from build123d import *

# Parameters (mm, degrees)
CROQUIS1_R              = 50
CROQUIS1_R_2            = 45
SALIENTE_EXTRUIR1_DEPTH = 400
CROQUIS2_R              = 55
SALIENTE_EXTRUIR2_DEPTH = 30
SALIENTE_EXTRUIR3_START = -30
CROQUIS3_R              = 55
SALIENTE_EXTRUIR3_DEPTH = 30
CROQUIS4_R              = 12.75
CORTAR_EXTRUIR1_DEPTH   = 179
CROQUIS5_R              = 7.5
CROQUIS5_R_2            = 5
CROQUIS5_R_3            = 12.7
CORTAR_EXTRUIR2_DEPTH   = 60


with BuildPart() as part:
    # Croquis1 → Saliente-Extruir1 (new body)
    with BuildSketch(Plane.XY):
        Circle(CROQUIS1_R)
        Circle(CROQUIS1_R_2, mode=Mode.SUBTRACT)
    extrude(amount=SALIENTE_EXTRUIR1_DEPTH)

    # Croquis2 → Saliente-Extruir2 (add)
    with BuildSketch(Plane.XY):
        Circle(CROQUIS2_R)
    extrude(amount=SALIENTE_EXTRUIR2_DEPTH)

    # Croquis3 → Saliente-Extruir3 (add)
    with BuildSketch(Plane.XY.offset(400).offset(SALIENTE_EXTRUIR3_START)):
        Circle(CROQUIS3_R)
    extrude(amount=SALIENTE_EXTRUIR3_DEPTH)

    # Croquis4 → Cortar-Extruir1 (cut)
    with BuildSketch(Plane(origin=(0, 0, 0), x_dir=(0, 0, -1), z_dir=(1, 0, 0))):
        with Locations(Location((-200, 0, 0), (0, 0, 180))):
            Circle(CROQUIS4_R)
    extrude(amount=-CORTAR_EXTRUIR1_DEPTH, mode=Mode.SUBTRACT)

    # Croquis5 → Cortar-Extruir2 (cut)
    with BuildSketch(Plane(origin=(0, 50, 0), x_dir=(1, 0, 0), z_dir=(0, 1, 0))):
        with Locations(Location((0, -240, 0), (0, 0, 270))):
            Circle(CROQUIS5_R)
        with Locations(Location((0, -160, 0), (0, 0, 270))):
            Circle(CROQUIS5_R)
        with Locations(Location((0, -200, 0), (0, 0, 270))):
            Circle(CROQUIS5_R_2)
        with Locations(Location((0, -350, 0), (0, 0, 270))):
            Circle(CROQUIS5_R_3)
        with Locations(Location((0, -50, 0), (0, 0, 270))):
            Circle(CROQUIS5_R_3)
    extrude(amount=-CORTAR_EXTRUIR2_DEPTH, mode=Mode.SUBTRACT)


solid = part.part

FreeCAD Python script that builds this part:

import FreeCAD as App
import Part
import Sketcher

V = App.Vector
Q = App.Units.Quantity

doc = App.newDocument("Part")
body = doc.addObject("PartDesign::Body", "Body")

# Sketch on XY plane
sketch1 = doc.addObject("Sketcher::SketchObject", "Sketch")
body.addObject(sketch1)
sketch1.AttachmentSupport = (doc.XY_Plane, [""])
sketch1.MapMode = "FlatFace"
sketch1.addGeometry([
    Part.Circle(V(0, 0, 0), V(0, 0, 1), 50),
    Part.Circle(V(0, 0, 0), V(0, 0, 1), 45),
], False)
sketch1.addConstraint([
    Sketcher.Constraint("Coincident", 0, 3, -1, 1),
    Sketcher.Constraint("Coincident", 1, 3, -1, 1),
    Sketcher.Constraint("Diameter", 0, Q("100 mm")),
    Sketcher.Constraint("Diameter", 1, Q("90 mm")),
])
pad1 = doc.addObject("PartDesign::Pad", "Pad")
body.addObject(pad1)
pad1.Profile = sketch1
pad1.Length = 400

# Sketch on XY plane
sketch2 = doc.addObject("Sketcher::SketchObject", "Sketch001")
body.addObject(sketch2)
sketch2.AttachmentSupport = (doc.XY_Plane, [""])
sketch2.MapMode = "FlatFace"
sketch2.addGeometry(Part.Circle(V(0, 0, 0), V(0, 0, 1), 55), False)
sketch2.addConstraint([
    Sketcher.Constraint("Coincident", 0, 3, -1, 1),
    Sketcher.Constraint("Diameter", 0, Q("110 mm")),
])
pad2 = doc.addObject("PartDesign::Pad", "Pad001")
body.addObject(pad2)
pad2.Profile = sketch2
pad2.Length = 30

# Sketch on XY plane
sketch3 = doc.addObject("Sketcher::SketchObject", "Sketch002")
body.addObject(sketch3)
sketch3.AttachmentSupport = (doc.XY_Plane, [""])
sketch3.MapMode = "FlatFace"
sketch3.AttachmentOffset = App.Placement(V(0, 0, 370), App.Rotation())
sketch3.addGeometry(Part.Circle(V(0, 0, 0), V(0, 0, 1), 55), False)
sketch3.addConstraint([
    Sketcher.Constraint("Coincident", 0, 3, -1, 1),
    Sketcher.Constraint("Diameter", 0, Q("110 mm")),
])
pad3 = doc.addObject("PartDesign::Pad", "Pad002")
body.addObject(pad3)
pad3.Profile = sketch3
pad3.Length = 30

# Sketch on YZ plane
sketch4 = doc.addObject("Sketcher::SketchObject", "Sketch003")
body.addObject(sketch4)
sketch4.AttachmentSupport = (doc.YZ_Plane, [""])
sketch4.MapMode = "FlatFace"
sketch4.addGeometry(Part.Circle(V(0, 200, 0), V(0, 0, 1), 13), False)
sketch4.addConstraint([
    Sketcher.Constraint("PointOnObject", 0, 3, -2),
    Sketcher.Constraint("Diameter", 0, Q("25.5 mm")),
    Sketcher.Constraint("DistanceY", -1, 1, 0, 3, Q("200 mm")),
])
pocket1 = doc.addObject("PartDesign::Pocket", "Pocket")
body.addObject(pocket1)
pocket1.Profile = sketch4
pocket1.Length = 179

# Sketch on XZ plane
sketch5 = doc.addObject("Sketcher::SketchObject", "Sketch004")
body.addObject(sketch5)
sketch5.AttachmentSupport = (doc.XZ_Plane, [""])
sketch5.MapMode = "FlatFace"
sketch5.AttachmentOffset = App.Placement(V(0, 0, -50), App.Rotation())
sketch5.addGeometry([
    Part.Circle(V(0, 240, 0), V(0, 0, 1), 8),  # 0
    Part.Circle(V(0, 160, 0), V(0, 0, 1), 8),  # 1
    Part.Circle(V(0, 200, 0), V(0, 0, 1), 5),  # 2
    Part.Circle(V(0, 350, 0), V(0, 0, 1), 13),  # 3
    Part.Circle(V(0, 50, 0), V(0, 0, 1), 13),  # 4
], False)
sketch5.addConstraint([
    Sketcher.Constraint("Equal", 0, 1),
    Sketcher.Constraint("Equal", 3, 4),
    Sketcher.Constraint("PointOnObject", 0, 3, -2),
    Sketcher.Constraint("PointOnObject", 1, 3, -2),
    Sketcher.Constraint("PointOnObject", 2, 3, -2),
    Sketcher.Constraint("PointOnObject", 3, 3, -2),
    Sketcher.Constraint("PointOnObject", 4, 3, -2),
    Sketcher.Constraint("Diameter", 0, Q("15 mm")),
    Sketcher.Constraint("Diameter", 2, Q("10 mm")),
    Sketcher.Constraint("Diameter", 3, Q("25.4 mm")),
    Sketcher.Constraint("DistanceY", -1, 1, 0, 3, Q("240 mm")),
    Sketcher.Constraint("DistanceY", -1, 1, 1, 3, Q("160 mm")),
    Sketcher.Constraint("DistanceY", -1, 1, 2, 3, Q("200 mm")),
    Sketcher.Constraint("DistanceY", -1, 1, 3, 3, Q("350 mm")),
    Sketcher.Constraint("DistanceY", -1, 1, 4, 3, Q("50 mm")),
])
pocket2 = doc.addObject("PartDesign::Pocket", "Pocket001")
body.addObject(pocket2)
pocket2.Profile = sketch5
pocket2.Length = 60
pocket2.Reversed = True

doc.recompute()
